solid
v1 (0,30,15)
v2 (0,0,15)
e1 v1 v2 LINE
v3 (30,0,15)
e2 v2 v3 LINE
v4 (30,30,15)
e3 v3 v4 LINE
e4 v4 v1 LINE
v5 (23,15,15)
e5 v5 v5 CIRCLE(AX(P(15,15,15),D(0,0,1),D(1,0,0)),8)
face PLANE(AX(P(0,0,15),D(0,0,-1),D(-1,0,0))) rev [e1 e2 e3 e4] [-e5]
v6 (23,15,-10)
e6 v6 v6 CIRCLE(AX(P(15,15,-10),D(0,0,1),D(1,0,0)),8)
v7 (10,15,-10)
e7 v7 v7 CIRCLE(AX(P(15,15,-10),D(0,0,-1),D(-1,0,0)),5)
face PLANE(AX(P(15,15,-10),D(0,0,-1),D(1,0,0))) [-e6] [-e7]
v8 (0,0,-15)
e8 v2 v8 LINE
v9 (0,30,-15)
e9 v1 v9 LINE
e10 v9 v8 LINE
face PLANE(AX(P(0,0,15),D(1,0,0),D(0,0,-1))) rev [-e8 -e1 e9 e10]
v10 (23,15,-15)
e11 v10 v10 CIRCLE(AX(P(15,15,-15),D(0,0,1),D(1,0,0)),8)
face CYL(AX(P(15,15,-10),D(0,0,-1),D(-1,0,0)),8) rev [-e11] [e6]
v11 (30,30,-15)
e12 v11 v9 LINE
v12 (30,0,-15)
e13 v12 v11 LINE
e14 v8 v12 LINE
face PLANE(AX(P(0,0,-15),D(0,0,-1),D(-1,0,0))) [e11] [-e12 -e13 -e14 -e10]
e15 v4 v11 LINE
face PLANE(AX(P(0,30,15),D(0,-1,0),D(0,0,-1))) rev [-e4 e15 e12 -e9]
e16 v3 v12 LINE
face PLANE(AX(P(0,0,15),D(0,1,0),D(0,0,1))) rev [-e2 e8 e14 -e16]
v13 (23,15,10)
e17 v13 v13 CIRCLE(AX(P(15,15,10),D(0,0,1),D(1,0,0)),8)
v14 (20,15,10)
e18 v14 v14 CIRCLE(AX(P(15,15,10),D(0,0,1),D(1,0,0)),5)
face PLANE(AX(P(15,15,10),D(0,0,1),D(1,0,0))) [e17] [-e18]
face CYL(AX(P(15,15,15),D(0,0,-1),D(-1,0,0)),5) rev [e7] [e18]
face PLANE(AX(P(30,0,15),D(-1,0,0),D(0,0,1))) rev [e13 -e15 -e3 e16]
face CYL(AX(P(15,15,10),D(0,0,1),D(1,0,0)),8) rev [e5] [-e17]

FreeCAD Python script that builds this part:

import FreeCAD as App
import Part
import Sketcher

V = App.Vector


def add_polygon(sketch, points):
    """Adds a closed chain of lines whose ends are joined by coincident constraints."""
    first, n = sketch.GeometryCount, len(points)
    for a, b in zip(points, points[1:] + points[:1]):
        sketch.addGeometry(Part.LineSegment(App.Vector(*a, 0), App.Vector(*b, 0)), False)
    for i in range(n):
        sketch.addConstraint(Sketcher.Constraint("Coincident", first + i, 2, first + (i + 1) % n, 1))

doc = App.newDocument("Part")
params = doc.addObject("Spreadsheet::Sheet", "Params")
for row, (alias, value) in enumerate([
    ("sketch1_diameter", "10 mm"),
    ("sketch1_width", "30 mm"),
    ("pad1_length", "30 mm"),
    ("sketch2_diameter", "16 mm"),
    ("pocket1_length", "5 mm"),
], start=1):
    params.set(f"A{row}", alias)
    params.set(f"B{row}", "=" + value)
    params.setAlias(f"B{row}", alias)

body = doc.addObject("PartDesign::Body", "Body")

# Sketch on XY plane
sketch1 = body.newObject("Sketcher::SketchObject", "Sketch")
sketch1.AttachmentSupport = (doc.getObject("XY_Plane"), [""])
sketch1.MapMode = "FlatFace"
add_polygon(sketch1, [(0, 30), (0, 0), (30, 0), (30, 30)])  # lines 0-3
sketch1.addGeometry(Part.Circle(V(15, 15, 0), V(0, 0, 1), 5), False)  # 4
sketch1.addConstraint([
    Sketcher.Constraint("Vertical", 0),
    Sketcher.Constraint("Horizontal", 1),
    Sketcher.Constraint("Vertical", 2),
    Sketcher.Constraint("Horizontal", 3),
    Sketcher.Constraint("Coincident", 0, 2, -1, 1),
    Sketcher.Constraint("Equal", 3, 0),
    Sketcher.Constraint("Diameter", 4, 10.0),
    Sketcher.Constraint("DistanceX", 1, 1, 1, 2, 30.0),
    Sketcher.Constraint("DistanceX", -1, 1, 4, 3, 15.0),
    Sketcher.Constraint("DistanceY", -1, 1, 4, 3, 15.0),
])
sketch1.setExpression("Constraints[10]", "Params.sketch1_diameter")
sketch1.setExpression("Constraints[11]", "Params.sketch1_width")
pad1 = body.newObject("PartDesign::Pad", "Pad")
pad1.Profile = sketch1
pad1.setExpression("Length", "Params.pad1_length")
pad1.Midplane = True

# Sketch on XY plane
sketch2 = body.newObject("Sketcher::SketchObject", "Sketch001")
sketch2.AttachmentSupport = (doc.getObject("XY_Plane"), [""])
sketch2.MapMode = "FlatFace"
sketch2.AttachmentOffset = App.Placement(V(0, 0, 15), App.Rotation())
sketch2.addGeometry(Part.Circle(V(15, 15, 0), V(0, 0, 1), 8), False)
sketch2.addConstraint([
    Sketcher.Constraint("Diameter", 0, 16.0),
    Sketcher.Constraint("DistanceX", -1, 1, 0, 3, 15.0),
    Sketcher.Constraint("DistanceY", -1, 1, 0, 3, 15.0),
])
sketch2.setExpression("Constraints[0]", "Params.sketch2_diameter")
pocket1 = body.newObject("PartDesign::Pocket", "Pocket")
pocket1.Profile = sketch2
pocket1.setExpression("Length", "Params.pocket1_length")
doc.recompute()

mirrored = body.newObject("PartDesign::Mirrored", "Mirrored")
mirrored.Originals = [pocket1]
mirrored.MirrorPlane = (doc.getObject("XY_Plane"), [""])
body.Tip = mirrored

doc.recompute()
